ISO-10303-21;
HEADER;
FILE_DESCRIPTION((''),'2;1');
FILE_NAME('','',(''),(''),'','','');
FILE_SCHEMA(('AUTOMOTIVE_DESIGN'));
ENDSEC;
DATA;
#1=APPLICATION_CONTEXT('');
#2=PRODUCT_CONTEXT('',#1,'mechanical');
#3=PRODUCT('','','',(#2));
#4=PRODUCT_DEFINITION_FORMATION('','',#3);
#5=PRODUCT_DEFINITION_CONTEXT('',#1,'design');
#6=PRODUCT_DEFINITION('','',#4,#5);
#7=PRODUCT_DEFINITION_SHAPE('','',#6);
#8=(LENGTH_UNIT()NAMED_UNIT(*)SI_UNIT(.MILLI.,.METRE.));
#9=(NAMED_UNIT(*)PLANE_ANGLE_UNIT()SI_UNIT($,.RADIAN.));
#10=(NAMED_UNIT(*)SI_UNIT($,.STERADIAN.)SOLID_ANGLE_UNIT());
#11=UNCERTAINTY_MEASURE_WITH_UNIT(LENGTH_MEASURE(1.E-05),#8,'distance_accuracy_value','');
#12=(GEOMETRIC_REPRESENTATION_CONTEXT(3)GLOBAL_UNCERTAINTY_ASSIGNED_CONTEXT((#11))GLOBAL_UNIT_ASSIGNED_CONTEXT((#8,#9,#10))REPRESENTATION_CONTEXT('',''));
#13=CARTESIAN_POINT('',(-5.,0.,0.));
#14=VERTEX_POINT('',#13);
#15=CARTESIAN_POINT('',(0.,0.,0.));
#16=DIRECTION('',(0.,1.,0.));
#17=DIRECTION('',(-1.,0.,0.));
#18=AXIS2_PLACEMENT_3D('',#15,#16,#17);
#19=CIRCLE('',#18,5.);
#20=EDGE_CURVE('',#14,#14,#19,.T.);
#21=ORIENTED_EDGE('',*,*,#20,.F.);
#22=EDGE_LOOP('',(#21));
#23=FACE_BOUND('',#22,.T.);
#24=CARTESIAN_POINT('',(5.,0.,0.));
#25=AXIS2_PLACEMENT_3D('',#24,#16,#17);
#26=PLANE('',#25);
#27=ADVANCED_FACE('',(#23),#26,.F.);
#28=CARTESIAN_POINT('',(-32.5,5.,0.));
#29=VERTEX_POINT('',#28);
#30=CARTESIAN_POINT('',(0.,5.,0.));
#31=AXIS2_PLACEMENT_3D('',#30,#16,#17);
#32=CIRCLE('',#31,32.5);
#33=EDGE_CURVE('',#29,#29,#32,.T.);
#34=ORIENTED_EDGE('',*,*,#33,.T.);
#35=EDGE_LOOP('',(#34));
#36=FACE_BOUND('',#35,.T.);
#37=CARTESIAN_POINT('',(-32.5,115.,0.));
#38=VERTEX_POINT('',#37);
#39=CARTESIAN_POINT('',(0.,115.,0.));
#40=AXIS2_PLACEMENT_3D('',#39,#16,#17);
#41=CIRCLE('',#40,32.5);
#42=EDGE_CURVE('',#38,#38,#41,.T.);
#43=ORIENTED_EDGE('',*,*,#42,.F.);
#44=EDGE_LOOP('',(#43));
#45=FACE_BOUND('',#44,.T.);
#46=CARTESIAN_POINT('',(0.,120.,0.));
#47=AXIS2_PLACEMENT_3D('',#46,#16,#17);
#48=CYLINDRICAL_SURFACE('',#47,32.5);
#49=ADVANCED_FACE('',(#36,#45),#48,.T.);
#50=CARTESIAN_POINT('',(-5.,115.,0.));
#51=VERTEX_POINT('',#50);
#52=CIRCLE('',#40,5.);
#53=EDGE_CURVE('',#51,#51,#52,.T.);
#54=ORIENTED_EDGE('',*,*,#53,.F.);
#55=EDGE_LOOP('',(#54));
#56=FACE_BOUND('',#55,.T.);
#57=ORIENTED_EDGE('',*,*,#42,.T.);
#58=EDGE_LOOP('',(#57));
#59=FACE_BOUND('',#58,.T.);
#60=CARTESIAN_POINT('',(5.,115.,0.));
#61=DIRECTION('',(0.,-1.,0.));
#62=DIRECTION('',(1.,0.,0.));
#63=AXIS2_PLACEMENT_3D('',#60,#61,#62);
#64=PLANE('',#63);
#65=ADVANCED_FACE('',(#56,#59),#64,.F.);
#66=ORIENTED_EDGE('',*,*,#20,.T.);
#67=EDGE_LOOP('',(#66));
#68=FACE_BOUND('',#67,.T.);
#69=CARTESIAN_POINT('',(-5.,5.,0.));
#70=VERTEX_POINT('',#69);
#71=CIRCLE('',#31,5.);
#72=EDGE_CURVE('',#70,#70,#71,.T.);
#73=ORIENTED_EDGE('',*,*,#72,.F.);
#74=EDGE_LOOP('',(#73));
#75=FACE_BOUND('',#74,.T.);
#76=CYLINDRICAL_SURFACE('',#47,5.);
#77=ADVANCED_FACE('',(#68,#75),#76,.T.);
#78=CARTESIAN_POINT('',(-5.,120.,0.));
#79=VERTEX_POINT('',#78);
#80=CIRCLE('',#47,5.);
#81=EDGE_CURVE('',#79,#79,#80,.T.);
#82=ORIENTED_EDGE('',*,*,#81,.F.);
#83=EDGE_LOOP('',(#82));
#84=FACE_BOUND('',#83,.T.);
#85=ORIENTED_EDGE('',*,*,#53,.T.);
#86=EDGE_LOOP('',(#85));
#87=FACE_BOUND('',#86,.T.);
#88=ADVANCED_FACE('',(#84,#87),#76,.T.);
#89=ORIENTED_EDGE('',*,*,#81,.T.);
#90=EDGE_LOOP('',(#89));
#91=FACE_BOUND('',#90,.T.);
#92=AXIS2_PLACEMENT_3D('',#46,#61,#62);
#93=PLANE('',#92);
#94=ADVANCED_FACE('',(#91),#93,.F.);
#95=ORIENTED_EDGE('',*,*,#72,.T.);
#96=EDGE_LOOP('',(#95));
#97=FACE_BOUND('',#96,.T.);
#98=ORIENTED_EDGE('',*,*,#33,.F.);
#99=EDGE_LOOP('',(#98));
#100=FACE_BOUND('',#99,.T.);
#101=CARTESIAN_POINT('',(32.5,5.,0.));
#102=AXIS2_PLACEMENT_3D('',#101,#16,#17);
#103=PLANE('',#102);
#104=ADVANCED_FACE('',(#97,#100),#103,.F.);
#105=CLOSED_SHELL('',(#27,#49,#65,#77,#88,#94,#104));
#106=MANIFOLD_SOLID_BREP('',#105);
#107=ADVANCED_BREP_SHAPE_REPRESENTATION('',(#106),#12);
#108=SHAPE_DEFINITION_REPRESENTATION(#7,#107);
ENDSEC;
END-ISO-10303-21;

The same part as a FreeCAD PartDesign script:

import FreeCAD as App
import Part
import Sketcher

V = App.Vector

doc = App.newDocument("Part")
body = doc.addObject("PartDesign::Body", "Body")

sketch1 = doc.addObject("Sketcher::SketchObject", "Sketch")
body.addObject(sketch1)
sketch1.AttachmentSupport = (doc.XY_Plane, [""])
sketch1.MapMode = "FlatFace"
sketch1.addGeometry([
    Part.LineSegment(V(5, 120, 0), V(0, 120, 0)),
    Part.LineSegment(V(0, 120, 0), V(0, 0, 0)),
    Part.LineSegment(V(0, 0, 0), V(5, 0, 0)),
    Part.LineSegment(V(5, 0, 0), V(5, 5, 0)),
    Part.LineSegment(V(5, 5, 0), V(32.5, 5, 0)),
    Part.LineSegment(V(32.5, 5, 0), V(32.5, 115, 0)),
    Part.LineSegment(V(32.5, 115, 0), V(5, 115, 0)),
    Part.LineSegment(V(5, 115, 0), V(5, 120, 0)),
], False)
sketch1.addConstraint([
    Sketcher.Constraint("Coincident", 0, 2, 1, 1),
    Sketcher.Constraint("Coincident", 1, 2, 2, 1),
    Sketcher.Constraint("Coincident", 2, 2, 3, 1),
    Sketcher.Constraint("Coincident", 3, 2, 4, 1),
    Sketcher.Constraint("Coincident", 4, 2, 5, 1),
    Sketcher.Constraint("Coincident", 5, 2, 6, 1),
    Sketcher.Constraint("Coincident", 6, 2, 7, 1),
    Sketcher.Constraint("Coincident", 7, 2, 0, 1),
    Sketcher.Constraint("Horizontal", 0),
    Sketcher.Constraint("Vertical", 1),
    Sketcher.Constraint("Horizontal", 2),
    Sketcher.Constraint("Vertical", 3),
    Sketcher.Constraint("Horizontal", 4),
    Sketcher.Constraint("Vertical", 5),
    Sketcher.Constraint("Horizontal", 6),
    Sketcher.Constraint("Vertical", 7),
    Sketcher.Constraint("Coincident", 1, 2, -1, 1),
    Sketcher.Constraint("Vertical", 3, 2, 6, 2),
    Sketcher.Constraint("Equal", 2, 3),
    Sketcher.Constraint("Equal", 3, 7),
    Sketcher.Constraint("DistanceX", 0, 2, 0, 1, 5.0),
    Sketcher.Constraint("DistanceY", 1, 2, 1, 1, 120.0),
    Sketcher.Constraint("DistanceX", 4, 1, 4, 2, 27.5),
])
revolution = doc.addObject("PartDesign::Revolution", "Revolution")
body.addObject(revolution)
revolution.Profile = sketch1
revolution.ReferenceAxis = (sketch1, ["V_Axis"])
revolution.Angle = 360

doc.recompute()
